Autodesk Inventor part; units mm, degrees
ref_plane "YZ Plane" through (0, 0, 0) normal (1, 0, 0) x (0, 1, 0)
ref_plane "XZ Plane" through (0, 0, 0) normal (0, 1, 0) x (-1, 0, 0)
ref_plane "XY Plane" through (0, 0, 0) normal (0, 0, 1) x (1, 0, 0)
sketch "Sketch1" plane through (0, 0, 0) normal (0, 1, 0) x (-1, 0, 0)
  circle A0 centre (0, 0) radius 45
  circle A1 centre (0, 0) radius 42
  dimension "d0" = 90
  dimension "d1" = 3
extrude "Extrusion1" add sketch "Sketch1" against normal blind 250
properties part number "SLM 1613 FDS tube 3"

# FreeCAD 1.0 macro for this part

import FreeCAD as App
import Part
import Sketcher

V = App.Vector
Q = App.Units.Quantity

doc = App.newDocument("Part")
params = doc.addObject("Spreadsheet::Sheet", "Params")
for row, (alias, value) in enumerate([
    ("sketch1_diameter", "90 mm"),
    ("sketch1_diameter2", "84 mm"),
    ("pad1_length", "250 mm"),
], start=1):
    params.set(f"A{row}", alias)
    params.set(f"B{row}", "=" + value)
    params.setAlias(f"B{row}", alias)

body = doc.addObject("PartDesign::Body", "Body")

sketch1 = body.newObject("Sketcher::SketchObject", "Sketch")
sketch1.AttachmentSupport = (doc.getObject("XZ_Plane"), [""])
sketch1.MapMode = "FlatFace"
sketch1.addGeometry([
    Part.Circle(V(0, 0, 0), V(0, 0, 1), 45),
    Part.Circle(V(0, 0, 0), V(0, 0, 1), 42),
], False)
sketch1.addConstraint([
    Sketcher.Constraint("Coincident", 0, 3, -1, 1),
    Sketcher.Constraint("Coincident", 1, 3, -1, 1),
    Sketcher.Constraint("Diameter", 0, Q("90 mm")),
    Sketcher.Constraint("Diameter", 1, Q("84 mm")),
])
sketch1.setExpression("Constraints[2]", "Params.sketch1_diameter")
sketch1.setExpression("Constraints[3]", "Params.sketch1_diameter2")
pad1 = body.newObject("PartDesign::Pad", "Pad")
pad1.Profile = sketch1
pad1.setExpression("Length", "Params.pad1_length")

doc.recompute()
